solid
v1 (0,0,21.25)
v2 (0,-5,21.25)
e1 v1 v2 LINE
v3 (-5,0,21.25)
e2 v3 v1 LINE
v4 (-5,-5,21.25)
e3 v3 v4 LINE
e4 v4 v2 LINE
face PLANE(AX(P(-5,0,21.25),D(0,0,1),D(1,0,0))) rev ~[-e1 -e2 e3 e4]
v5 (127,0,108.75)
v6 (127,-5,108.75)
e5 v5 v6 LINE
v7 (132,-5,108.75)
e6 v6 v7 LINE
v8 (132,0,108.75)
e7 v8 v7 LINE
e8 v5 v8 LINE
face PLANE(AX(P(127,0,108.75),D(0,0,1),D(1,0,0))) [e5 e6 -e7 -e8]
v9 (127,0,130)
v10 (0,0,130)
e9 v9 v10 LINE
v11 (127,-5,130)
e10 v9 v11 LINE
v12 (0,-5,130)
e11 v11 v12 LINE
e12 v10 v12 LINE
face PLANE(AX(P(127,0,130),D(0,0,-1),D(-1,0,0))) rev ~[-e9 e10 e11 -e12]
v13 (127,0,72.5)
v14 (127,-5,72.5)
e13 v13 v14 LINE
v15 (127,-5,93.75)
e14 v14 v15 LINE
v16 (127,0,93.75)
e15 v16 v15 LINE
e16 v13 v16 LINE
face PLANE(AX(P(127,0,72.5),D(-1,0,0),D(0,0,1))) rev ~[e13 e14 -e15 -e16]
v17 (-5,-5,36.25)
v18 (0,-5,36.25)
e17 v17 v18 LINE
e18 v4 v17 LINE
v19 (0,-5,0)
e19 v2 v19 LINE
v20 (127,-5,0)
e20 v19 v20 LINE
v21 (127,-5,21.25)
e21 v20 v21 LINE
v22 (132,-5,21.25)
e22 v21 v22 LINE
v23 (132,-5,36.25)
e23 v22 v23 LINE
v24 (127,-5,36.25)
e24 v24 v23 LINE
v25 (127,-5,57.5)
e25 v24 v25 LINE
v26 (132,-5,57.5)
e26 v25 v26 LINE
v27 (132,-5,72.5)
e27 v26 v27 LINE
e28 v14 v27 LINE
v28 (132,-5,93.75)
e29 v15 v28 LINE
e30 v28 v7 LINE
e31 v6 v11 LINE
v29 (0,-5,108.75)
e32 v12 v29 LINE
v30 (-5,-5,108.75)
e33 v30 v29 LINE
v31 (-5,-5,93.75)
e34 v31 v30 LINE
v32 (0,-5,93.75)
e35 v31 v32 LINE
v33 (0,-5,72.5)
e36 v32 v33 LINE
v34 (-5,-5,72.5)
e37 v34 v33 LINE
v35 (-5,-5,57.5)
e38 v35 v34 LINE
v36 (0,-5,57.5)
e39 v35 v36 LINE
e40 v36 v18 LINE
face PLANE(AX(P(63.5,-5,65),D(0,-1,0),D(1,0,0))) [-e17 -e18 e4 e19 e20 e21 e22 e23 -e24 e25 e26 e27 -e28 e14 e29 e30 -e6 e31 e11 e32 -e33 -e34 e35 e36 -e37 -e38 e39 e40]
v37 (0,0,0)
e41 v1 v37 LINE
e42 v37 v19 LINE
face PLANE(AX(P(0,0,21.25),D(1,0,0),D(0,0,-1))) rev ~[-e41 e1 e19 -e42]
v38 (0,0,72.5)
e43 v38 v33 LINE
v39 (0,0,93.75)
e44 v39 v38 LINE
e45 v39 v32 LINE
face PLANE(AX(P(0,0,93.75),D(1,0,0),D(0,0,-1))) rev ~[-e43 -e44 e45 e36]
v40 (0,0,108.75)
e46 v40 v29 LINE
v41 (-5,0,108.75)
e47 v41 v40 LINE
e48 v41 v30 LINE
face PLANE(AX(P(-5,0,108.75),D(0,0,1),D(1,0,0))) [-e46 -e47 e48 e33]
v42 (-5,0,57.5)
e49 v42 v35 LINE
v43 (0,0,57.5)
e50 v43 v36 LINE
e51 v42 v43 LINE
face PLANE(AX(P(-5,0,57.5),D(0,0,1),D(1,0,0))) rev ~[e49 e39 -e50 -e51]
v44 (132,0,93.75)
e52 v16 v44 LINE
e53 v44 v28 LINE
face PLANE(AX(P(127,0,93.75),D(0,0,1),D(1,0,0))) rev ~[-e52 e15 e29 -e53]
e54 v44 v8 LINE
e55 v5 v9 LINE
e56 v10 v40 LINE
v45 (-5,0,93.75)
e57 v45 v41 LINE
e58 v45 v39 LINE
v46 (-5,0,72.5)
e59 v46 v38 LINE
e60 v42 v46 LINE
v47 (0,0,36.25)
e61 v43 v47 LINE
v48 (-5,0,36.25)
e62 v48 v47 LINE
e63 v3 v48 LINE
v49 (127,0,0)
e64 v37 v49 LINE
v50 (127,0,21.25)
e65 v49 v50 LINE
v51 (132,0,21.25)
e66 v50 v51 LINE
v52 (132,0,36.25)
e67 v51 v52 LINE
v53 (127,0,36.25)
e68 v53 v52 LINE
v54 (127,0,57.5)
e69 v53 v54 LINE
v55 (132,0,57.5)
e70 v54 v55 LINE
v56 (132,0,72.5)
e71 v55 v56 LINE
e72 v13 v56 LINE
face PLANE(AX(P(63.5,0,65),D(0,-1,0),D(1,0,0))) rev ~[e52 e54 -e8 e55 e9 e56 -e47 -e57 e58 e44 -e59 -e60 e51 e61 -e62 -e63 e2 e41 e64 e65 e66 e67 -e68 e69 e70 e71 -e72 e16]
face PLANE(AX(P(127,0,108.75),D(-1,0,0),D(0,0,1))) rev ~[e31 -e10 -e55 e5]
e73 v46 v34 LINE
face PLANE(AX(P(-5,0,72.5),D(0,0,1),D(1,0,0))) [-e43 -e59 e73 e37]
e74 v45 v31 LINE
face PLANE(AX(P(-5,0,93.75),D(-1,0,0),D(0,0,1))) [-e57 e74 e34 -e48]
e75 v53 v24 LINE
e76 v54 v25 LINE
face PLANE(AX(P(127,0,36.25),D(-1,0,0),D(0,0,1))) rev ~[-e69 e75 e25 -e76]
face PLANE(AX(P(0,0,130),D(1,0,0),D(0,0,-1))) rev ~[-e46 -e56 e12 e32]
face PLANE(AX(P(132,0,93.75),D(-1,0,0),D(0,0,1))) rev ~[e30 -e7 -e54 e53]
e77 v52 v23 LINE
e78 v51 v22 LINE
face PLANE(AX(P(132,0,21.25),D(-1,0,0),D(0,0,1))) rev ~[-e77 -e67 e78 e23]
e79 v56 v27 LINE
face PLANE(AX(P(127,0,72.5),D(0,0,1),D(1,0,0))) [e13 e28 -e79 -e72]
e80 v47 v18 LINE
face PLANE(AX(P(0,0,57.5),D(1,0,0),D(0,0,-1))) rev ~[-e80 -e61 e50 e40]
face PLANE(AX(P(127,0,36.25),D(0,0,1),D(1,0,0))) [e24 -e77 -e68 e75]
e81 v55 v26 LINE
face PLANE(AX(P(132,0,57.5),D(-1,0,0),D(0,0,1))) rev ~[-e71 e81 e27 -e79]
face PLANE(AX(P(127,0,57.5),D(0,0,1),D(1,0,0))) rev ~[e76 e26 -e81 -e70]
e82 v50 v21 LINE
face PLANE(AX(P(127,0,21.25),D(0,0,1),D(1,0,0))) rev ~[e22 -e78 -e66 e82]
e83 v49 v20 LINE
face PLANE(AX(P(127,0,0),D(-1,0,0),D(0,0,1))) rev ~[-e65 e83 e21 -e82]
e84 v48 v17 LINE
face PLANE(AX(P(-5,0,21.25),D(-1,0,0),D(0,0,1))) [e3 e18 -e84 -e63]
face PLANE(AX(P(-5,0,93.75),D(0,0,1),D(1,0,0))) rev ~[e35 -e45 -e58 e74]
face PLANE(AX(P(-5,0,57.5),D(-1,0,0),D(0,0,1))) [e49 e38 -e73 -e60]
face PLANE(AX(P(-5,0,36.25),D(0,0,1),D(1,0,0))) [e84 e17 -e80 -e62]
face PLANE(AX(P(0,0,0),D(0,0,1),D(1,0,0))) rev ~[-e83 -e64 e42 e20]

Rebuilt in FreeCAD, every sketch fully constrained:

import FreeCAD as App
import Part
import Sketcher
from FreeCAD import Vector
Q = App.Units.Quantity

doc = App.newDocument("Part")
body = doc.addObject("PartDesign::Body", "Body")

# Sketch on XZ plane
sketch1 = body.newObject("Sketcher::SketchObject", "Sketch")
sketch1.AttachmentSupport = (doc.getObject("XZ_Plane"), [""])
sketch1.MapMode = "FlatFace"
sketch1.addGeometry(Part.LineSegment(Vector(0, 0, 0), Vector(127, 0, 0)), False)
sketch1.addGeometry(Part.LineSegment(Vector(127, 0, 0), Vector(127, 21, 0)), False)
sketch1.addGeometry(Part.LineSegment(Vector(127, 21, 0), Vector(132, 21, 0)), False)
sketch1.addGeometry(Part.LineSegment(Vector(132, 21, 0), Vector(132, 36, 0)), False)
sketch1.addGeometry(Part.LineSegment(Vector(132, 36, 0), Vector(127, 36, 0)), False)
sketch1.addGeometry(Part.LineSegment(Vector(127, 36, 0), Vector(127, 58, 0)), False)
sketch1.addGeometry(Part.LineSegment(Vector(127, 58, 0), Vector(132, 58, 0)), False)
sketch1.addGeometry(Part.LineSegment(Vector(132, 58, 0), Vector(132, 72, 0)), False)
sketch1.addGeometry(Part.LineSegment(Vector(132, 72, 0), Vector(127, 72, 0)), False)
sketch1.addGeometry(Part.LineSegment(Vector(127, 72, 0), Vector(127, 94, 0)), False)
sketch1.addGeometry(Part.LineSegment(Vector(127, 94, 0), Vector(132, 94, 0)), False)
sketch1.addGeometry(Part.LineSegment(Vector(132, 94, 0), Vector(132, 109, 0)), False)
sketch1.addGeometry(Part.LineSegment(Vector(132, 109, 0), Vector(127, 109, 0)), False)
sketch1.addGeometry(Part.LineSegment(Vector(127, 109, 0), Vector(127, 130, 0)), False)
sketch1.addGeometry(Part.LineSegment(Vector(127, 130, 0), Vector(0, 130, 0)), False)
sketch1.addGeometry(Part.LineSegment(Vector(0, 130, 0), Vector(0, 109, 0)), False)
sketch1.addGeometry(Part.LineSegment(Vector(0, 109, 0), Vector(-5, 109, 0)), False)
sketch1.addGeometry(Part.LineSegment(Vector(-5, 109, 0), Vector(-5, 94, 0)), False)
sketch1.addGeometry(Part.LineSegment(Vector(-5, 94, 0), Vector(0, 94, 0)), False)
sketch1.addGeometry(Part.LineSegment(Vector(0, 94, 0), Vector(0, 72, 0)), False)
sketch1.addGeometry(Part.LineSegment(Vector(0, 72, 0), Vector(-5, 72, 0)), False)
sketch1.addGeometry(Part.LineSegment(Vector(-5, 72, 0), Vector(-5, 58, 0)), False)
sketch1.addGeometry(Part.LineSegment(Vector(-5, 58, 0), Vector(0, 58, 0)), False)
sketch1.addGeometry(Part.LineSegment(Vector(0, 58, 0), Vector(0, 36, 0)), False)
sketch1.addGeometry(Part.LineSegment(Vector(0, 36, 0), Vector(-5, 36, 0)), False)
sketch1.addGeometry(Part.LineSegment(Vector(-5, 36, 0), Vector(-5, 21, 0)), False)
sketch1.addGeometry(Part.LineSegment(Vector(-5, 21, 0), Vector(0, 21, 0)), False)
sketch1.addGeometry(Part.LineSegment(Vector(0, 21, 0), Vector(0, 0, 0)), False)
sketch1.addConstraint(Sketcher.Constraint("Coincident", 0, 2, 1, 1))
sketch1.addConstraint(Sketcher.Constraint("Coincident", 1, 2, 2, 1))
sketch1.addConstraint(Sketcher.Constraint("Coincident", 2, 2, 3, 1))
sketch1.addConstraint(Sketcher.Constraint("Coincident", 3, 2, 4, 1))
sketch1.addConstraint(Sketcher.Constraint("Coincident", 4, 2, 5, 1))
sketch1.addConstraint(Sketcher.Constraint("Coincident", 5, 2, 6, 1))
sketch1.addConstraint(Sketcher.Constraint("Coincident", 6, 2, 7, 1))
sketch1.addConstraint(Sketcher.Constraint("Coincident", 7, 2, 8, 1))
sketch1.addConstraint(Sketcher.Constraint("Coincident", 8, 2, 9, 1))
sketch1.addConstraint(Sketcher.Constraint("Coincident", 9, 2, 10, 1))
sketch1.addConstraint(Sketcher.Constraint("Coincident", 10, 2, 11, 1))
sketch1.addConstraint(Sketcher.Constraint("Coincident", 11, 2, 12, 1))
sketch1.addConstraint(Sketcher.Constraint("Coincident", 12, 2, 13, 1))
sketch1.addConstraint(Sketcher.Constraint("Coincident", 13, 2, 14, 1))
sketch1.addConstraint(Sketcher.Constraint("Coincident", 14, 2, 15, 1))
sketch1.addConstraint(Sketcher.Constraint("Coincident", 15, 2, 16, 1))
sketch1.addConstraint(Sketcher.Constraint("Coincident", 16, 2, 17, 1))
sketch1.addConstraint(Sketcher.Constraint("Coincident", 17, 2, 18, 1))
sketch1.addConstraint(Sketcher.Constraint("Coincident", 18, 2, 19, 1))
sketch1.addConstraint(Sketcher.Constraint("Coincident", 19, 2, 20, 1))
sketch1.addConstraint(Sketcher.Constraint("Coincident", 20, 2, 21, 1))
sketch1.addConstraint(Sketcher.Constraint("Coincident", 21, 2, 22, 1))
sketch1.addConstraint(Sketcher.Constraint("Coincident", 22, 2, 23, 1))
sketch1.addConstraint(Sketcher.Constraint("Coincident", 23, 2, 24, 1))
sketch1.addConstraint(Sketcher.Constraint("Coincident", 24, 2, 25, 1))
sketch1.addConstraint(Sketcher.Constraint("Coincident", 25, 2, 26, 1))
sketch1.addConstraint(Sketcher.Constraint("Coincident", 26, 2, 27, 1))
sketch1.addConstraint(Sketcher.Constraint("Coincident", 27, 2, 0, 1))
sketch1.addConstraint(Sketcher.Constraint("Horizontal", 0))
sketch1.addConstraint(Sketcher.Constraint("Vertical", 1))
sketch1.addConstraint(Sketcher.Constraint("Horizontal", 2))
sketch1.addConstraint(Sketcher.Constraint("Vertical", 3))
sketch1.addConstraint(Sketcher.Constraint("Horizontal", 4))
sketch1.addConstraint(Sketcher.Constraint("Vertical", 5))
sketch1.addConstraint(Sketcher.Constraint("Horizontal", 6))
sketch1.addConstraint(Sketcher.Constraint("Vertical", 7))
sketch1.addConstraint(Sketcher.Constraint("Horizontal", 8))
sketch1.addConstraint(Sketcher.Constraint("Vertical", 9))
sketch1.addConstraint(Sketcher.Constraint("Horizontal", 10))
sketch1.addConstraint(Sketcher.Constraint("Vertical", 11))
sketch1.addConstraint(Sketcher.Constraint("Horizontal", 12))
sketch1.addConstraint(Sketcher.Constraint("Vertical", 13))
sketch1.addConstraint(Sketcher.Constraint("Horizontal", 14))
sketch1.addConstraint(Sketcher.Constraint("Vertical", 15))
sketch1.addConstraint(Sketcher.Constraint("Horizontal", 16))
sketch1.addConstraint(Sketcher.Constraint("Vertical", 17))
sketch1.addConstraint(Sketcher.Constraint("Horizontal", 18))
sketch1.addConstraint(Sketcher.Constraint("Vertical", 19))
sketch1.addConstraint(Sketcher.Constraint("Horizontal", 20))
sketch1.addConstraint(Sketcher.Constraint("Vertical", 21))
sketch1.addConstraint(Sketcher.Constraint("Horizontal", 22))
sketch1.addConstraint(Sketcher.Constraint("Vertical", 23))
sketch1.addConstraint(Sketcher.Constraint("Horizontal", 24))
sketch1.addConstraint(Sketcher.Constraint("Vertical", 25))
sketch1.addConstraint(Sketcher.Constraint("Horizontal", 26))
sketch1.addConstraint(Sketcher.Constraint("Vertical", 27))
sketch1.addConstraint(Sketcher.Constraint("Coincident", 27, 2, -1, 1))
sketch1.addConstraint(Sketcher.Constraint("PointOnObject", 14, 2, -2))
sketch1.addConstraint(Sketcher.Constraint("PointOnObject", 18, 2, -2))
sketch1.addConstraint(Sketcher.Constraint("PointOnObject", 22, 2, -2))
sketch1.addConstraint(Sketcher.Constraint("Horizontal", 12, 2, 15, 2))
sketch1.addConstraint(Sketcher.Constraint("Horizontal", 10, 2, 17, 2))
sketch1.addConstraint(Sketcher.Constraint("Horizontal", 8, 2, 19, 2))
sketch1.addConstraint(Sketcher.Constraint("Horizontal", 6, 2, 21, 2))
sketch1.addConstraint(Sketcher.Constraint("Horizontal", 4, 2, 23, 2))
sketch1.addConstraint(Sketcher.Constraint("Horizontal", 2, 2, 25, 2))
sketch1.addConstraint(Sketcher.Constraint("Vertical", 1, 2, 4, 2))
sketch1.addConstraint(Sketcher.Constraint("Vertical", 3, 2, 6, 2))
sketch1.addConstraint(Sketcher.Constraint("Vertical", 5, 2, 8, 2))
sketch1.addConstraint(Sketcher.Constraint("Vertical", 7, 2, 10, 2))
sketch1.addConstraint(Sketcher.Constraint("Vertical", 9, 2, 12, 2))
sketch1.addConstraint(Sketcher.Constraint("Vertical", 17, 2, 20, 2))
sketch1.addConstraint(Sketcher.Constraint("Vertical", 21, 2, 24, 2))
sketch1.addConstraint(Sketcher.Constraint("Equal", 12, 16))
sketch1.addConstraint(Sketcher.Constraint("Equal", 1, 5))
sketch1.addConstraint(Sketcher.Constraint("Equal", 3, 7))
sketch1.addConstraint(Sketcher.Constraint("Equal", 5, 9))
sketch1.addConstraint(Sketcher.Constraint("Equal", 7, 11))
sketch1.addConstraint(Sketcher.Constraint("Equal", 9, 13))
sketch1.addConstraint(Sketcher.Constraint("DistanceX", 0, 1, 0, 2, Q("127 mm")))
sketch1.addConstraint(Sketcher.Constraint("DistanceX", 2, 1, 2, 2, Q("5 mm")))
sketch1.addConstraint(Sketcher.Constraint("DistanceY", 3, 1, 3, 2, Q("15 mm")))
sketch1.addConstraint(Sketcher.Constraint("DistanceY", -1, 1, 13, 2, Q("130 mm")))
pad1 = body.newObject("PartDesign::Pad", "Pad")
pad1.Profile = sketch1
pad1.Length = 5

doc.recompute()
